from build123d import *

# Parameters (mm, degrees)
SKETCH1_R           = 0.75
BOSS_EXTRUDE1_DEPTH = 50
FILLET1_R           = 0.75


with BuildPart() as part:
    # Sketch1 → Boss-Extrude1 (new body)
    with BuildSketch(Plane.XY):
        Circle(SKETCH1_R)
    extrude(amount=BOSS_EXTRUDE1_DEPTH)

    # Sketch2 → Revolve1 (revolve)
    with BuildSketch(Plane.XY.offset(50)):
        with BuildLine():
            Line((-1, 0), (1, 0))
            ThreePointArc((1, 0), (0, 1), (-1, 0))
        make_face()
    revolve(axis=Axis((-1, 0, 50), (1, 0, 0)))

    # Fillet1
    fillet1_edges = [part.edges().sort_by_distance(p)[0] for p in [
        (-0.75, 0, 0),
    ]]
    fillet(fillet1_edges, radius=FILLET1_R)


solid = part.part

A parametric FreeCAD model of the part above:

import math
import FreeCAD as App
import Part
import Sketcher

V = App.Vector


def edges_at(feature, points):
    """Names of the edges that pass closest to the given points."""
    edges = feature.Shape.Edges
    near = lambda p: min(range(len(edges)), key=lambda i: edges[i].distToShape(Part.Vertex(*p))[0])
    return sorted({f"Edge{near(p) + 1}" for p in points})

doc = App.newDocument("Part")
body = doc.addObject("PartDesign::Body", "Body")

# Sketch on XY plane
sketch1 = body.newObject("Sketcher::SketchObject", "Sketch")
sketch1.AttachmentSupport = (doc.getObject("XY_Plane"), [""])
sketch1.MapMode = "FlatFace"
sketch1.addGeometry(Part.Circle(V(0, 0, 0), V(0, 0, 1), 0.8), False)
sketch1.addConstraint([
    Sketcher.Constraint("Coincident", 0, 3, -1, 1),
    Sketcher.Constraint("Diameter", 0, 1.5),
])
pad1 = body.newObject("PartDesign::Pad", "Pad")
pad1.Profile = sketch1
pad1.Length = 50

# Sketch on XY plane
sketch2 = body.newObject("Sketcher::SketchObject", "Sketch001")
sketch2.AttachmentSupport = (doc.getObject("XY_Plane"), [""])
sketch2.MapMode = "FlatFace"
sketch2.AttachmentOffset = App.Placement(V(0, 0, 50), App.Rotation())
sketch2.addGeometry([
    Part.LineSegment(V(-1, 0, 0), V(1, 0, 0)),
    Part.ArcOfCircle(Part.Circle(V(0, 0, 0), V(0, 0, 1), 1), math.radians(0), math.radians(180)),
], False)
sketch2.addConstraint([
    Sketcher.Constraint("Coincident", 0, 1, 1, 2),
    Sketcher.Constraint("Coincident", 1, 1, 0, 2),
    Sketcher.Constraint("Horizontal", 0),
    Sketcher.Constraint("Coincident", 1, 3, -1, 1),
    Sketcher.Constraint("PointOnObject", 0, 1, -1),
    Sketcher.Constraint("Radius", 1, 1.0),
])
revolution = body.newObject("PartDesign::Revolution", "Revolution")
revolution.Profile = sketch2
revolution.ReferenceAxis = (sketch2, ["H_Axis"])
revolution.Angle = 360
doc.recompute()

fillet = body.newObject("PartDesign::Fillet", "Fillet")
fillet.Base = (revolution, edges_at(revolution, [(-0.75, 0, 0)]))
fillet.Radius = 0.75

doc.recompute()
